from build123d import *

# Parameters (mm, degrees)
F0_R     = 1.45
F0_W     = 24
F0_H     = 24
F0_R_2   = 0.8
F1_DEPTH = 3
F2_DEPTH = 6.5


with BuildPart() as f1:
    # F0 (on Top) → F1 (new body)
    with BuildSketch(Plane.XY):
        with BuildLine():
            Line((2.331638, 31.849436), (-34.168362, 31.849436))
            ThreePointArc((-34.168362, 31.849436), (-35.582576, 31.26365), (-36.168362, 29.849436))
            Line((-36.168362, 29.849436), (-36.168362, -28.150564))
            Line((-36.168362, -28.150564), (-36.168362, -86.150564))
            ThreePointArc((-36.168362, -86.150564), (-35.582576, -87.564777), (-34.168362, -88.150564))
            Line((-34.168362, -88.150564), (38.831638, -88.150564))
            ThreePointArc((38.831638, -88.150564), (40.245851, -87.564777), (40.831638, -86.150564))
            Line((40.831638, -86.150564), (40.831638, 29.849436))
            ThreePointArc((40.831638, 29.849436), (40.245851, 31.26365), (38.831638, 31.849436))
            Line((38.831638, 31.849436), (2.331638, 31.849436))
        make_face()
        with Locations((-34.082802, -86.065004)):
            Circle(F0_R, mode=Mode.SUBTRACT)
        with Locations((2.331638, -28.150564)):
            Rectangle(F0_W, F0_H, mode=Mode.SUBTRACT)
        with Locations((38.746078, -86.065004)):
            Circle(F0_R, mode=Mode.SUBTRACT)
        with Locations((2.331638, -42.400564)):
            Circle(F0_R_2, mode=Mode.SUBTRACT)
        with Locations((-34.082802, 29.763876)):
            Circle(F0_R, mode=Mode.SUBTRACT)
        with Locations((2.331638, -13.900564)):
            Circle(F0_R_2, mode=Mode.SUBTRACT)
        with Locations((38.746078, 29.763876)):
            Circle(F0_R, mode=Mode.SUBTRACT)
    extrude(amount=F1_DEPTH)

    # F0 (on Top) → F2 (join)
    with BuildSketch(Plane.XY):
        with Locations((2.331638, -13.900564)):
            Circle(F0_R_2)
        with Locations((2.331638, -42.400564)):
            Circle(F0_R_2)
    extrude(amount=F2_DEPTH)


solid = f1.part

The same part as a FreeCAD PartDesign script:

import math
import FreeCAD as App
import Part
import Sketcher

V = App.Vector
Q = App.Units.Quantity


def add_polygon(sketch, points):
    """Adds a closed chain of lines whose ends are joined by coincident constraints."""
    first, n = sketch.GeometryCount, len(points)
    for a, b in zip(points, points[1:] + points[:1]):
        sketch.addGeometry(Part.LineSegment(App.Vector(*a, 0), App.Vector(*b, 0)), False)
    for i in range(n):
        sketch.addConstraint(Sketcher.Constraint("Coincident", first + i, 2, first + (i + 1) % n, 1))

doc = App.newDocument("Part")
params = doc.addObject("Spreadsheet::Sheet", "Params")
for row, (alias, value) in enumerate([
    ("sketch1_radius", "1.999999 mm"),
    ("sketch1_diameter", "2.9 mm"),
    ("sketch1_diameter2", "1.6 mm"),
    ("sketch1_width", "73 mm"),
    ("sketch1_width2", "24 mm"),
    ("pad1_length", "3 mm"),
    ("sketch2_diameter", "1.6 mm"),
    ("pad2_length", "6.5 mm"),
], start=1):
    params.set(f"A{row}", alias)
    params.set(f"B{row}", "=" + value)
    params.setAlias(f"B{row}", alias)

body = doc.addObject("PartDesign::Body", "Body")

sketch1 = body.newObject("Sketcher::SketchObject", "Sketch")
sketch1.AttachmentSupport = (doc.getObject("XY_Plane"), [""])
sketch1.MapMode = "FlatFace"
sketch1.addGeometry(Part.ArcOfCircle(Part.Circle(V(-34.2, 29.8, 0), V(0, 0, 1), 2), math.radians(90), math.radians(180)), False)
sketch1.addGeometry(Part.LineSegment(V(-36.2, 29.8, 0), V(-36.2, -86.2, 0)), False)
sketch1.addGeometry(Part.ArcOfCircle(Part.Circle(V(-34.2, -86.2, 0), V(0, 0, 1), 2), math.radians(-180), math.radians(-90)), False)
sketch1.addGeometry(Part.LineSegment(V(-34.2, -88.2, 0), V(38.8, -88.2, 0)), False)
sketch1.addGeometry(Part.ArcOfCircle(Part.Circle(V(38.8, -86.2, 0), V(0, 0, 1), 2), math.radians(-90), math.radians(0)), False)
sketch1.addGeometry(Part.LineSegment(V(40.8, -86.2, 0), V(40.8, 29.8, 0)), False)
sketch1.addGeometry(Part.ArcOfCircle(Part.Circle(V(38.8, 29.8, 0), V(0, 0, 1), 2), math.radians(0), math.radians(90)), False)
sketch1.addGeometry(Part.LineSegment(V(38.8, 31.8, 0), V(-34.2, 31.8, 0)), False)
sketch1.addGeometry(Part.Circle(V(-34.1, -86.1, 0), V(0, 0, 1), 1.4), False)
sketch1.addGeometry(Part.Circle(V(38.7, -86.1, 0), V(0, 0, 1), 1.4), False)
sketch1.addGeometry(Part.Circle(V(2.3, -42.4, 0), V(0, 0, 1), 0.8), False)
sketch1.addGeometry(Part.Circle(V(-34.1, 29.8, 0), V(0, 0, 1), 1.4), False)
add_polygon(sketch1, [(14.3, -40.2), (-9.7, -40.2), (-9.7, -16.2), (14.3, -16.2)])
sketch1.addGeometry(Part.Circle(V(2.3, -13.9, 0), V(0, 0, 1), 0.8), False)
sketch1.addGeometry(Part.Circle(V(38.7, 29.8, 0), V(0, 0, 1), 1.4), False)
sketch1.addConstraint([
    Sketcher.Constraint("Tangent", 0, 2, 1, 1),
    Sketcher.Constraint("Tangent", 1, 2, 2, 1),
    Sketcher.Constraint("Tangent", 2, 2, 3, 1),
    Sketcher.Constraint("Tangent", 3, 2, 4, 1),
    Sketcher.Constraint("Tangent", 4, 2, 5, 1),
    Sketcher.Constraint("Tangent", 5, 2, 6, 1),
    Sketcher.Constraint("Tangent", 6, 2, 7, 1),
    Sketcher.Constraint("Tangent", 7, 2, 0, 1),
    Sketcher.Constraint("Vertical", 1),
    Sketcher.Constraint("Horizontal", 3),
    Sketcher.Constraint("Vertical", 5),
    Sketcher.Constraint("Horizontal", 7),
    Sketcher.Constraint("Horizontal", 12),
    Sketcher.Constraint("Vertical", 13),
    Sketcher.Constraint("Horizontal", 14),
    Sketcher.Constraint("Vertical", 15),
    Sketcher.Constraint("Equal", 0, 2),
    Sketcher.Constraint("Equal", 2, 4),
    Sketcher.Constraint("Equal", 4, 6),
    Sketcher.Constraint("Equal", 8, 9),
    Sketcher.Constraint("Equal", 9, 11),
    Sketcher.Constraint("Equal", 10, 16),
    Sketcher.Constraint("Equal", 11, 17),
    Sketcher.Constraint("Horizontal", 8, 3, 9, 3),
    Sketcher.Constraint("Horizontal", 11, 3, 17, 3),
    Sketcher.Constraint("Vertical", 8, 3, 11, 3),
    Sketcher.Constraint("Vertical", 10, 3, 16, 3),
    Sketcher.Constraint("Vertical", 9, 3, 17, 3),
    Sketcher.Constraint("Equal", 14, 13),
    Sketcher.Constraint("Radius", 0, Q("1.999999 mm")),
    Sketcher.Constraint("Diameter", 8, Q("2.9 mm")),
    Sketcher.Constraint("Diameter", 10, Q("1.6 mm")),
    Sketcher.Constraint("DistanceX", 3, 1, 3, 2, Q("73 mm")),
    Sketcher.Constraint("DistanceX", 12, 2, 12, 1, Q("24 mm")),
    Sketcher.Constraint("DistanceY", 1, 2, 1, 1, Q("116 mm")),
    Sketcher.Constraint("DistanceX", 12, 2, 10, 3, Q("12 mm")),
    Sketcher.Constraint("DistanceY", 2, 3, 12, 2, Q("46 mm")),
    Sketcher.Constraint("DistanceX", 10, 3, 4, 3, Q("36.499998 mm")),
    Sketcher.Constraint("DistanceY", 10, 3, 16, 3, Q("28.5 mm")),
    Sketcher.Constraint("DistanceY", 4, 3, 10, 3, Q("43.749998 mm")),
    Sketcher.Constraint("DistanceX", 2, 3, -1, 1, Q("34.168362 mm")),
    Sketcher.Constraint("DistanceX", 2, 3, 8, 3, Q("0.08556 mm")),
    Sketcher.Constraint("DistanceY", 2, 3, 8, 3, Q("0.08556 mm")),
    Sketcher.Constraint("DistanceX", 9, 3, 4, 3, Q("0.085558 mm")),
    Sketcher.Constraint("DistanceY", 11, 3, 0, 3, Q("0.085561 mm")),
    Sketcher.Constraint("DistanceY", -1, 1, 0, 3, Q("29.849437 mm")),
])
sketch1.setExpression("Constraints[33]", "Params.sketch1_radius")
sketch1.setExpression("Constraints[34]", "Params.sketch1_diameter")
sketch1.setExpression("Constraints[35]", "Params.sketch1_diameter2")
sketch1.setExpression("Constraints[36]", "Params.sketch1_width")
sketch1.setExpression("Constraints[37]", "Params.sketch1_width2")
pad1 = body.newObject("PartDesign::Pad", "Pad")
pad1.Profile = sketch1
pad1.setExpression("Length", "Params.pad1_length")

sketch2 = body.newObject("Sketcher::SketchObject", "Sketch001")
sketch2.AttachmentSupport = (doc.getObject("XY_Plane"), [""])
sketch2.MapMode = "FlatFace"
sketch2.addGeometry([
    Part.Circle(V(2.3, -13.9, 0), V(0, 0, 1), 0.8),
    Part.Circle(V(2.3, -42.4, 0), V(0, 0, 1), 0.8),
], False)
sketch2.addConstraint([
    Sketcher.Constraint("Equal", 0, 1),
    Sketcher.Constraint("Vertical", 0, 3, 1, 3),
    Sketcher.Constraint("Diameter", 0, Q("1.6 mm")),
    Sketcher.Constraint("DistanceY", 1, 3, 0, 3, Q("28.5 mm")),
    Sketcher.Constraint("DistanceX", -1, 1, 0, 3, Q("2.331638 mm")),
    Sketcher.Constraint("DistanceY", 0, 3, -1, 1, Q("13.900564 mm")),
])
sketch2.setExpression("Constraints[2]", "Params.sketch2_diameter")
pad2 = body.newObject("PartDesign::Pad", "Pad001")
pad2.Profile = sketch2
pad2.setExpression("Length", "Params.pad2_length")

doc.recompute()
